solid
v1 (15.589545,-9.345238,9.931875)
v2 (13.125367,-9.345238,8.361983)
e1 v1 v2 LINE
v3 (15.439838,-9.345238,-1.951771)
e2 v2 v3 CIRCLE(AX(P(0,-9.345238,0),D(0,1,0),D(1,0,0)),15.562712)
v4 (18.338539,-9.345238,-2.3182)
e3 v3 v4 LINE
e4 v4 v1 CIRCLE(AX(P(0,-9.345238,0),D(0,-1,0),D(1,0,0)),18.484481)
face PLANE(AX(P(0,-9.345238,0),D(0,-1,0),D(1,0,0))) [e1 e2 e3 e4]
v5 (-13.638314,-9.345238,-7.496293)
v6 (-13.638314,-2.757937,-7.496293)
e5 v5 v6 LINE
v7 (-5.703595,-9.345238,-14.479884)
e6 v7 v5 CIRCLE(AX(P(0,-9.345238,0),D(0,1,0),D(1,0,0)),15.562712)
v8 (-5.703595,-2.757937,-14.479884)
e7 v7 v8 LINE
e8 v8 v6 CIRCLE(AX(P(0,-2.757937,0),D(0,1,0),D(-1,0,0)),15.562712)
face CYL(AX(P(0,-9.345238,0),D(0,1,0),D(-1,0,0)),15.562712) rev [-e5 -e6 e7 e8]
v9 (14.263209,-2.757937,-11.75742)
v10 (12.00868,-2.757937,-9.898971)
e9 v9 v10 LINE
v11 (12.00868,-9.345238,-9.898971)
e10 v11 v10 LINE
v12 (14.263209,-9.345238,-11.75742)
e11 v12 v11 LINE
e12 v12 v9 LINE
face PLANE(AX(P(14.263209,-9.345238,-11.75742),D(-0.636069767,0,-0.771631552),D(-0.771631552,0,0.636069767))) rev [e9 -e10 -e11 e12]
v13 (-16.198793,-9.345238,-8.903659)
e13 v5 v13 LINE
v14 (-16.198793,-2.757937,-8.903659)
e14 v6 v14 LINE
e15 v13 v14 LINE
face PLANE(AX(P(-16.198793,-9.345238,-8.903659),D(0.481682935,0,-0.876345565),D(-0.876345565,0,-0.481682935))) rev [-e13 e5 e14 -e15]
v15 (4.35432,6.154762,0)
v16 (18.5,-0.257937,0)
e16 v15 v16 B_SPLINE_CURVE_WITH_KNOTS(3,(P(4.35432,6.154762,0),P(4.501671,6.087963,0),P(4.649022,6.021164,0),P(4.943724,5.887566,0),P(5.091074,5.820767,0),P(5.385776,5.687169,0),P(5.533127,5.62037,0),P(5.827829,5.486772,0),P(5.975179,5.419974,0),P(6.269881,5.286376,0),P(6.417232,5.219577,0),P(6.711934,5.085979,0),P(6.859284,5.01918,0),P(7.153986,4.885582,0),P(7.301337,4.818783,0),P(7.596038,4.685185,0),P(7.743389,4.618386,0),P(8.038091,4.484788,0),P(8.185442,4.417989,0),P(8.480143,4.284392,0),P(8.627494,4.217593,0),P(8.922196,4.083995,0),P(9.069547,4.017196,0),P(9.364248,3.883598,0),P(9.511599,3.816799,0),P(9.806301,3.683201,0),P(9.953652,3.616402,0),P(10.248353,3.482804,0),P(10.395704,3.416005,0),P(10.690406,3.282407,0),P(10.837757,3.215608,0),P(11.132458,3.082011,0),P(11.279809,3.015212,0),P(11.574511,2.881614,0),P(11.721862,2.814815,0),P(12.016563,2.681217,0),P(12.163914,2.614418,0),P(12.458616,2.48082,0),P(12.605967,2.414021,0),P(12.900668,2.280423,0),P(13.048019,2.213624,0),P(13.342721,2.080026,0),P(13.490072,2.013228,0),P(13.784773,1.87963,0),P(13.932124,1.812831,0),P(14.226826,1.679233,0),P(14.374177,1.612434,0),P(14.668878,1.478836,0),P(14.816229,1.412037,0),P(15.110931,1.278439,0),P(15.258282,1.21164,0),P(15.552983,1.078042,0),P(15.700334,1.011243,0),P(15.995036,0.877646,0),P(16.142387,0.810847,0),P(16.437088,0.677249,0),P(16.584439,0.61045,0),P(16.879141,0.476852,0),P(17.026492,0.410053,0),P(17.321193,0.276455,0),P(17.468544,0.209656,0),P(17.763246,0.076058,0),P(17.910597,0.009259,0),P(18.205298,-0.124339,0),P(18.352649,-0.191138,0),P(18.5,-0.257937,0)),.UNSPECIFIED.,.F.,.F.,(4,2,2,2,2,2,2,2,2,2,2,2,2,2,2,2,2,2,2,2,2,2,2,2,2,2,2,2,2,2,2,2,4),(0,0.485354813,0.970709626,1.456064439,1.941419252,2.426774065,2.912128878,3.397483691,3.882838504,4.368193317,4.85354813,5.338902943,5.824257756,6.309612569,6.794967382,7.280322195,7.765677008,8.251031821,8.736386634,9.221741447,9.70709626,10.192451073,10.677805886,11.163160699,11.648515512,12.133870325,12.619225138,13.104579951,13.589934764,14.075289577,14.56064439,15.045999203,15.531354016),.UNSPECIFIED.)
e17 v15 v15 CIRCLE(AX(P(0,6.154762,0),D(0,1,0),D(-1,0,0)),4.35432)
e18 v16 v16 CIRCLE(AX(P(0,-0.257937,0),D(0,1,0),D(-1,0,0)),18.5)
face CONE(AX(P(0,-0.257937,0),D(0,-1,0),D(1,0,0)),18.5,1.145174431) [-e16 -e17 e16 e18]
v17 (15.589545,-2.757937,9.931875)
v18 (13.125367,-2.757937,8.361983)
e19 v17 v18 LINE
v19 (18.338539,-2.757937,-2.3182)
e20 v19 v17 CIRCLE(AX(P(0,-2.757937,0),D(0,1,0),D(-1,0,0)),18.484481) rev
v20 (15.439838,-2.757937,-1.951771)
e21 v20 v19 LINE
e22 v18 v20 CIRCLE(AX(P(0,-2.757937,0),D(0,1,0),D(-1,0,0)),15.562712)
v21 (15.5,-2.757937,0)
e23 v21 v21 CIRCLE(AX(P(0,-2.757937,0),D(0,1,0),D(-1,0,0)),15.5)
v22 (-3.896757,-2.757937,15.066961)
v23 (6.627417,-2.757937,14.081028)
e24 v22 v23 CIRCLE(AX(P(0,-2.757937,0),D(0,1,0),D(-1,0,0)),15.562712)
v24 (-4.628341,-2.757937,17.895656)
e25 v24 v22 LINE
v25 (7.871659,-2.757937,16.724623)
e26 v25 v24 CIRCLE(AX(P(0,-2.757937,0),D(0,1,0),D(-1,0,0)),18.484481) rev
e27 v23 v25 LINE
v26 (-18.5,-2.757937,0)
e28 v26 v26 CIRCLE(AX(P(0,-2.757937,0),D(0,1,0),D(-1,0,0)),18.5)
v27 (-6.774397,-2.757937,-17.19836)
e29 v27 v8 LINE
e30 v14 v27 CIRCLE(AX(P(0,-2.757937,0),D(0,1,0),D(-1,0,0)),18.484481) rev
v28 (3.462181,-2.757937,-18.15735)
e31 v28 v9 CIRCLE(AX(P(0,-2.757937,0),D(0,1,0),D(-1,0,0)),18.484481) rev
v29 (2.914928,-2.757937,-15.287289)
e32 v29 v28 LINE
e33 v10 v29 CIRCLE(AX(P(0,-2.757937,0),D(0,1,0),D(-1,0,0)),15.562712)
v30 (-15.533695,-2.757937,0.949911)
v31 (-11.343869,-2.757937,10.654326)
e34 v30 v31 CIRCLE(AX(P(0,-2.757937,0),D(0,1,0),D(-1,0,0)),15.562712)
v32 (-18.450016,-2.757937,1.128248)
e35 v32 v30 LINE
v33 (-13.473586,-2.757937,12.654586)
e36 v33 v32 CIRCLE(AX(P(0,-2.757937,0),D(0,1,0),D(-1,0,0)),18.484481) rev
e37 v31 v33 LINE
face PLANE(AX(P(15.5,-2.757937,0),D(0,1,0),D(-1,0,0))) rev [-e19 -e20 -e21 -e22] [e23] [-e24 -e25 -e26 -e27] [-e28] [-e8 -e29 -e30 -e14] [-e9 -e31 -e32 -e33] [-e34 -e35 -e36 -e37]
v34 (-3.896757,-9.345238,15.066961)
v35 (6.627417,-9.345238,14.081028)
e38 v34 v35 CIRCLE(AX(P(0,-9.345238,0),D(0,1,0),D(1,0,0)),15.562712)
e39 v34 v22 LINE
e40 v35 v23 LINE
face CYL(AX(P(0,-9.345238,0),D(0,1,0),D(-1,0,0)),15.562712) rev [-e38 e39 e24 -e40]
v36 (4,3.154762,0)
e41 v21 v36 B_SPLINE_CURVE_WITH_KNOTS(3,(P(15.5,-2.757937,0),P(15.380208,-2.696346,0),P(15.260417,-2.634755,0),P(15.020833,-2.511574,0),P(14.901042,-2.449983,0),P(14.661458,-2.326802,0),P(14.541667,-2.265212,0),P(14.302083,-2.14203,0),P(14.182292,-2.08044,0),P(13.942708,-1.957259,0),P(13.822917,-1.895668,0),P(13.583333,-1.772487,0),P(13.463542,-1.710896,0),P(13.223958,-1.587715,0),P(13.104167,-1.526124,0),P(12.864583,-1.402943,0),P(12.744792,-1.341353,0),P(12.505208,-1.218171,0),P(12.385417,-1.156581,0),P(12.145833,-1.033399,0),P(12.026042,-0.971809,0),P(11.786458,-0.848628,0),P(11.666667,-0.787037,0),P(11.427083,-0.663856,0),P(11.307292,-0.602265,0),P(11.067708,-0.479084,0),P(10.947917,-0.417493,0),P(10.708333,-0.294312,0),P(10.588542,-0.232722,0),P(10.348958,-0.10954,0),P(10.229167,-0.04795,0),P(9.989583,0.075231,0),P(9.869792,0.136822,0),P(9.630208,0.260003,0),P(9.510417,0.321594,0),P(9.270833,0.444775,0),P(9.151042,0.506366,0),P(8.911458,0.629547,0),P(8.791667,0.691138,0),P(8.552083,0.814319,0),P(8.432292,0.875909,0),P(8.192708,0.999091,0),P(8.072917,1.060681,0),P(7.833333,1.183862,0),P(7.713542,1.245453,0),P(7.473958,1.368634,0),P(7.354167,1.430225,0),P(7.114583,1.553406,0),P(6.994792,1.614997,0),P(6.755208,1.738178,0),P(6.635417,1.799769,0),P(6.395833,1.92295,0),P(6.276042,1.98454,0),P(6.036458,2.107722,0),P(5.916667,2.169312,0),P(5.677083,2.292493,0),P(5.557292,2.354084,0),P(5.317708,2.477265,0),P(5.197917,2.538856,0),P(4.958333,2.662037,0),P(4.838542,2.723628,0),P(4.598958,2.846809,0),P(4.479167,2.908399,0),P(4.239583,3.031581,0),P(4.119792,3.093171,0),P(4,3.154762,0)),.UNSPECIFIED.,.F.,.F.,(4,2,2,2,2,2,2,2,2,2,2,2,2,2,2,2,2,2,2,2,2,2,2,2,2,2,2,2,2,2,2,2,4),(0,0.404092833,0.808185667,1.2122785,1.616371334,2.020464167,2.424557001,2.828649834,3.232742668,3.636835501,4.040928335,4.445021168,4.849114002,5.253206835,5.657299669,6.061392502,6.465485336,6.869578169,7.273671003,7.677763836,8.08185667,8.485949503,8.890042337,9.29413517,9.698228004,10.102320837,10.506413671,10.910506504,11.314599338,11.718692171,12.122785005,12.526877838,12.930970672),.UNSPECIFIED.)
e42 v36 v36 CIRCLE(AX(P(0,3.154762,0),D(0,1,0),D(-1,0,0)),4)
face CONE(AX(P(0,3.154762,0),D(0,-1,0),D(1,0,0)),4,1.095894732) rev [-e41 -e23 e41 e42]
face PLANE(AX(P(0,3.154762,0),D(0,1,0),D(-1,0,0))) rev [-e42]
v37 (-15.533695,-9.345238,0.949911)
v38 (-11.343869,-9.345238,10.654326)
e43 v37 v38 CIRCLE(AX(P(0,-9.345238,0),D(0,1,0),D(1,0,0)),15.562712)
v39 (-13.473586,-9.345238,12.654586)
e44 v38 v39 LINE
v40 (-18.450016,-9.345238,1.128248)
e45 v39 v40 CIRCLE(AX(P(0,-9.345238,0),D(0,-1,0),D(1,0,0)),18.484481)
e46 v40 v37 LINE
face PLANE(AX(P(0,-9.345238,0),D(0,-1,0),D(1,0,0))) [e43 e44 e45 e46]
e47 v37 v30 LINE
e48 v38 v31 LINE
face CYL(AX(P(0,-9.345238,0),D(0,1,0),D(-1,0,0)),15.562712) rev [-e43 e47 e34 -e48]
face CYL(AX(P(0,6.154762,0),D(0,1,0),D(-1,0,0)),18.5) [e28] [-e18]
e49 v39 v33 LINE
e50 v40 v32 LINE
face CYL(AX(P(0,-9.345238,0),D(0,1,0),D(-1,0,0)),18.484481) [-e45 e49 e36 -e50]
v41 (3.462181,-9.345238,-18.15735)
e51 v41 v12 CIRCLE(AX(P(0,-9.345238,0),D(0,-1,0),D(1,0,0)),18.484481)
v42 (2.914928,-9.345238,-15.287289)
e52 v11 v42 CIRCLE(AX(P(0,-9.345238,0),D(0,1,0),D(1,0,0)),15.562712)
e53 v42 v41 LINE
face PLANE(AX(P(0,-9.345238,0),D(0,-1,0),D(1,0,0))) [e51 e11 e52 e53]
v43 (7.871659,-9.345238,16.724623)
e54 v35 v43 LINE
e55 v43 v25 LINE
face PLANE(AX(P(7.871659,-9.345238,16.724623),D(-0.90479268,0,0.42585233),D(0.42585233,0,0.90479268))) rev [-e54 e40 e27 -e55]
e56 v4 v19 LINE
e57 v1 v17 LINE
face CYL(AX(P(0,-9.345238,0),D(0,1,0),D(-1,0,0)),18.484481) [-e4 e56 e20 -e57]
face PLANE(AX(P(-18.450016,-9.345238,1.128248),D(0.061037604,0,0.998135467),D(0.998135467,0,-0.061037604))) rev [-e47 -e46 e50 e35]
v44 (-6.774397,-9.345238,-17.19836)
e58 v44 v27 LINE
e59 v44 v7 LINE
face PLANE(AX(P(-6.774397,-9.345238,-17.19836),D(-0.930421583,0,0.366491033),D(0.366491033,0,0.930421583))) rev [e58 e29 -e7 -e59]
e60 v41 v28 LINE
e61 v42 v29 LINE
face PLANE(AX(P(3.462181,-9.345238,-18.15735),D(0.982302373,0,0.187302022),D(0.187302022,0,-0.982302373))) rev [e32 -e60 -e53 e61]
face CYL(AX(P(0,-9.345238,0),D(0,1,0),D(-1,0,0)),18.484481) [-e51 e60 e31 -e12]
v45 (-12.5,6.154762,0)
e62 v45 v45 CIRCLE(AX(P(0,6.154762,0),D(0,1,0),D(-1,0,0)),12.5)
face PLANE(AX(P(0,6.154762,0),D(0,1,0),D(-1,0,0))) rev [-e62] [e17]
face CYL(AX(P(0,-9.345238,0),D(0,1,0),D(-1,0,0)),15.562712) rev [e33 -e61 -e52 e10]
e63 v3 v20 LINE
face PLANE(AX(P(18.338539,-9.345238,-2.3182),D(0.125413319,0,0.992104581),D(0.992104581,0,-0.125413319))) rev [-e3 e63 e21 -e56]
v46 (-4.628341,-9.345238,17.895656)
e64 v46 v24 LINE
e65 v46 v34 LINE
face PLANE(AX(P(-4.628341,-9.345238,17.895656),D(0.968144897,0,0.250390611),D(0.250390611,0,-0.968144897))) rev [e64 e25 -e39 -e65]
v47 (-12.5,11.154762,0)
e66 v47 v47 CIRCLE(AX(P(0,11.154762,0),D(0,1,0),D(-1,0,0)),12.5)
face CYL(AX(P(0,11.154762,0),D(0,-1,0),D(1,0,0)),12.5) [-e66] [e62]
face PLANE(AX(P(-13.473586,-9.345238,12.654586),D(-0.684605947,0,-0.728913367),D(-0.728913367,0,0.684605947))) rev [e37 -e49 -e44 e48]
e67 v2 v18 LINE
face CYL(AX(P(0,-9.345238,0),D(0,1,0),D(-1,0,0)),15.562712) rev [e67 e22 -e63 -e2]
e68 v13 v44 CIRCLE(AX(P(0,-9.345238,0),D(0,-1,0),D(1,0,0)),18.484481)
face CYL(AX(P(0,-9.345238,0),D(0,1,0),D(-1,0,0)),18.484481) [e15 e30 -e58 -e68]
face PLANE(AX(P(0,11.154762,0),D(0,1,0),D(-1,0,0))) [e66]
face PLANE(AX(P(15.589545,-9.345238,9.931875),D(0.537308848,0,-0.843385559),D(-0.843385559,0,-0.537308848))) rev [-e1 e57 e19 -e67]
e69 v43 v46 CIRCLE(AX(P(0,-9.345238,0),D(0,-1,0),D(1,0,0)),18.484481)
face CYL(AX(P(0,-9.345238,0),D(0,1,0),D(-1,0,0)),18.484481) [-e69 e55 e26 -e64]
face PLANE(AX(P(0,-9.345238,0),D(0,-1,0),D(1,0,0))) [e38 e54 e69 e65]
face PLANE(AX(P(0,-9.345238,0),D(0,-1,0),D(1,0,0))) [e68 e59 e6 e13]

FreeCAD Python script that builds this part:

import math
import FreeCAD as App
import Part
import Sketcher


def add_polygon(sketch, points):
    """Adds a closed chain of lines whose ends are joined by coincident constraints."""
    first, n = sketch.GeometryCount, len(points)
    for a, b in zip(points, points[1:] + points[:1]):
        sketch.addGeometry(Part.LineSegment(App.Vector(*a, 0), App.Vector(*b, 0)), False)
    for i in range(n):
        sketch.addConstraint(Sketcher.Constraint("Coincident", first + i, 2, first + (i + 1) % n, 1))

doc = App.newDocument("Part")
body = doc.addObject("PartDesign::Body", "Body")

# Sketch on XY plane
sketch1 = body.newObject("Sketcher::SketchObject", "Sketch")
sketch1.AttachmentSupport = (doc.getObject("XY_Plane"), [""])
sketch1.MapMode = "FlatFace"
add_polygon(sketch1, [(0, 6.2), (0, 3.2), (4, 3.2), (15.5, -2.8), (18.5, -2.8), (18.5, -0.3), (4.4, 6.2)])  # lines 0-6
sketch1.addConstraint(Sketcher.Constraint("Vertical", 0))
sketch1.addConstraint(Sketcher.Constraint("Horizontal", 1))
sketch1.addConstraint(Sketcher.Constraint("Horizontal", 3))
sketch1.addConstraint(Sketcher.Constraint("Vertical", 4))
sketch1.addConstraint(Sketcher.Constraint("Horizontal", 6))
sketch1.addConstraint(Sketcher.Constraint("PointOnObject", 0, 2, -2))
sketch1.addConstraint(Sketcher.Constraint("Equal", 3, 0))
sketch1.addConstraint(Sketcher.Constraint("DistanceX", 1, 1, 1, 2, 4.0))
sketch1.addConstraint(Sketcher.Constraint("DistanceX", 3, 1, 3, 2, 3.0))
sketch1.addConstraint(Sketcher.Constraint("DistanceY", 4, 1, 4, 2, 2.5))
sketch1.addConstraint(Sketcher.Constraint("DistanceX", -1, 1, 2, 2, 15.5))
sketch1.addConstraint(Sketcher.Constraint("DistanceX", 6, 2, 6, 1, 4.35432))
sketch1.addConstraint(Sketcher.Constraint("DistanceY", 2, 2, 1, 2, 5.912698))
sketch1.addConstraint(Sketcher.Constraint("DistanceY", -1, 1, 0, 2, 3.154762))
revolution = body.newObject("PartDesign::Revolution", "Revolution")
revolution.Profile = sketch1
revolution.ReferenceAxis = (sketch1, ["V_Axis"])
revolution.Angle = 360

# Sketch on XZ plane
sketch2 = body.newObject("Sketcher::SketchObject", "Sketch001")
sketch2.AttachmentSupport = (doc.getObject("XZ_Plane"), [""])
sketch2.MapMode = "FlatFace"
sketch2.AttachmentOffset = App.Placement(App.Vector(0, 0, 0.345238), App.Rotation())
sketch2.addGeometry(Part.LineSegment(App.Vector(-4.6, 17.9, 0), App.Vector(-3.9, 15.1, 0)), False)
sketch2.addGeometry(Part.ArcOfCircle(Part.Circle(App.Vector(0, 0, 0), App.Vector(0, 0, 1), 15.6), math.radians(65), math.radians(105)), False)
sketch2.addGeometry(Part.LineSegment(App.Vector(6.6, 14.1, 0), App.Vector(7.9, 16.7, 0)), False)
sketch2.addGeometry(Part.ArcOfCircle(Part.Circle(App.Vector(0, 0, 0), App.Vector(0, 0, 1), 18.5), math.radians(65), math.radians(105)), False)
sketch2.addGeometry(Part.LineSegment(App.Vector(15.4, -2, 0), App.Vector(18.3, -2.3, 0)), False)
sketch2.addGeometry(Part.ArcOfCircle(Part.Circle(App.Vector(0, 0, 0), App.Vector(0, 0, 1), 18.5), math.radians(-7), math.radians(33)), False)
sketch2.addGeometry(Part.LineSegment(App.Vector(15.6, 9.9, 0), App.Vector(13.1, 8.4, 0)), False)
sketch2.addGeometry(Part.ArcOfCircle(Part.Circle(App.Vector(0, 0, 0), App.Vector(0, 0, 1), 15.6), math.radians(-7), math.radians(33)), False)
sketch2.addGeometry(Part.LineSegment(App.Vector(2.9, -15.3, 0), App.Vector(3.5, -18.2, 0)), False)
sketch2.addGeometry(Part.ArcOfCircle(Part.Circle(App.Vector(0, 0, 0), App.Vector(0, 0, 1), 18.5), math.radians(-79), math.radians(-39)), False)
sketch2.addGeometry(Part.LineSegment(App.Vector(14.3, -11.8, 0), App.Vector(12, -9.9, 0)), False)
sketch2.addGeometry(Part.ArcOfCircle(Part.Circle(App.Vector(0, 0, 0), App.Vector(0, 0, 1), 15.6), math.radians(-79), math.radians(-39)), False)
sketch2.addGeometry(Part.LineSegment(App.Vector(-13.6, -7.5, 0), App.Vector(-16.2, -8.9, 0)), False)
sketch2.addGeometry(Part.ArcOfCircle(Part.Circle(App.Vector(0, 0, 0), App.Vector(0, 0, 1), 18.5), math.radians(-151), math.radians(-111)), False)
sketch2.addGeometry(Part.LineSegment(App.Vector(-6.8, -17.2, 0), App.Vector(-5.7, -14.5, 0)), False)
sketch2.addGeometry(Part.ArcOfCircle(Part.Circle(App.Vector(0, 0, 0), App.Vector(0, 0, 1), 15.6), math.radians(-151), math.radians(-111)), False)
sketch2.addGeometry(Part.LineSegment(App.Vector(-11.3, 10.7, 0), App.Vector(-13.5, 12.7, 0)), False)
sketch2.addGeometry(Part.ArcOfCircle(Part.Circle(App.Vector(0, 0, 0), App.Vector(0, 0, 1), 18.5), math.radians(137), math.radians(177)), False)
sketch2.addGeometry(Part.LineSegment(App.Vector(-18.5, 1.1, 0), App.Vector(-15.5, 0.9, 0)), False)
sketch2.addGeometry(Part.ArcOfCircle(Part.Circle(App.Vector(0, 0, 0), App.Vector(0, 0, 1), 15.6), math.radians(137), math.radians(177)), False)
sketch2.addConstraint(Sketcher.Constraint("Coincident", 0, 2, 1, 2))
sketch2.addConstraint(Sketcher.Constraint("Coincident", 1, 1, 2, 1))
sketch2.addConstraint(Sketcher.Constraint("Coincident", 2, 2, 3, 1))
sketch2.addConstraint(Sketcher.Constraint("Coincident", 3, 2, 0, 1))
sketch2.addConstraint(Sketcher.Constraint("Coincident", 4, 2, 5, 1))
sketch2.addConstraint(Sketcher.Constraint("Coincident", 5, 2, 6, 1))
sketch2.addConstraint(Sketcher.Constraint("Coincident", 6, 2, 7, 2))
sketch2.addConstraint(Sketcher.Constraint("Coincident", 7, 1, 4, 1))
sketch2.addConstraint(Sketcher.Constraint("Coincident", 8, 2, 9, 1))
sketch2.addConstraint(Sketcher.Constraint("Coincident", 9, 2, 10, 1))
sketch2.addConstraint(Sketcher.Constraint("Coincident", 10, 2, 11, 2))
sketch2.addConstraint(Sketcher.Constraint("Coincident", 11, 1, 8, 1))
sketch2.addConstraint(Sketcher.Constraint("Coincident", 12, 2, 13, 1))
sketch2.addConstraint(Sketcher.Constraint("Coincident", 13, 2, 14, 1))
sketch2.addConstraint(Sketcher.Constraint("Coincident", 14, 2, 15, 2))
sketch2.addConstraint(Sketcher.Constraint("Coincident", 15, 1, 12, 1))
sketch2.addConstraint(Sketcher.Constraint("Coincident", 16, 2, 17, 1))
sketch2.addConstraint(Sketcher.Constraint("Coincident", 17, 2, 18, 1))
sketch2.addConstraint(Sketcher.Constraint("Coincident", 18, 2, 19, 2))
sketch2.addConstraint(Sketcher.Constraint("Coincident", 19, 1, 16, 1))
sketch2.addConstraint(Sketcher.Constraint("Coincident", 1, 3, -1, 1))
sketch2.addConstraint(Sketcher.Constraint("Coincident", 3, 3, -1, 1))
sketch2.addConstraint(Sketcher.Constraint("Coincident", 5, 3, -1, 1))
sketch2.addConstraint(Sketcher.Constraint("Coincident", 7, 3, -1, 1))
sketch2.addConstraint(Sketcher.Constraint("Coincident", 9, 3, -1, 1))
sketch2.addConstraint(Sketcher.Constraint("Coincident", 11, 3, -1, 1))
sketch2.addConstraint(Sketcher.Constraint("Coincident", 13, 3, -1, 1))
sketch2.addConstraint(Sketcher.Constraint("Coincident", 15, 3, -1, 1))
sketch2.addConstraint(Sketcher.Constraint("Coincident", 17, 3, -1, 1))
sketch2.addConstraint(Sketcher.Constraint("Coincident", 19, 3, -1, 1))
sketch2.addConstraint(Sketcher.Constraint("Equal", 3, 5))
sketch2.addConstraint(Sketcher.Constraint("Equal", 1, 7))
sketch2.addConstraint(Sketcher.Constraint("Equal", 5, 9))
sketch2.addConstraint(Sketcher.Constraint("Equal", 7, 11))
sketch2.addConstraint(Sketcher.Constraint("Equal", 9, 13))
sketch2.addConstraint(Sketcher.Constraint("Equal", 11, 15))
sketch2.addConstraint(Sketcher.Constraint("Equal", 13, 17))
sketch2.addConstraint(Sketcher.Constraint("Equal", 15, 19))
sketch2.addConstraint(Sketcher.Constraint("DistanceX", 3, 2, 2, 2, 12.5))
sketch2.addConstraint(Sketcher.Constraint("Radius", 3, 18.484481))
sketch2.addConstraint(Sketcher.Constraint("Radius", 1, 15.562712))
sketch2.addConstraint(Sketcher.Constraint("DistanceY", 4, 2, -1, 1, 2.3182))
sketch2.addConstraint(Sketcher.Constraint("DistanceX", 7, 1, 4, 2, 2.8987))
sketch2.addConstraint(Sketcher.Constraint("DistanceY", 10, 2, 7, 1, 7.947199))
sketch2.addConstraint(Sketcher.Constraint("DistanceX", 8, 2, 10, 2, 8.546499))
sketch2.addConstraint(Sketcher.Constraint("DistanceY", 13, 2, 12, 2, 8.294701))
sketch2.addConstraint(Sketcher.Constraint("DistanceX", 12, 2, 14, 2, 10.495199))
sketch2.addConstraint(Sketcher.Constraint("DistanceY", -1, 1, 0, 2, 15.066961))
sketch2.addConstraint(Sketcher.Constraint("DistanceY", -1, 1, 1, 1, 14.081028))
sketch2.addConstraint(Sketcher.Constraint("DistanceX", -1, 1, 2, 2, 7.871659))
sketch2.addConstraint(Sketcher.Constraint("DistanceX", -1, 1, 9, 2, 14.263209))
sketch2.addConstraint(Sketcher.Constraint("DistanceY", 11, 1, -1, 1, 15.287289))
sketch2.addConstraint(Sketcher.Constraint("DistanceY", 12, 2, -1, 1, 8.903659))
sketch2.addConstraint(Sketcher.Constraint("DistanceY", -1, 1, 17, 2, 1.128248))
sketch2.addConstraint(Sketcher.Constraint("DistanceY", -1, 1, 18, 2, 0.949911))
sketch2.addConstraint(Sketcher.Constraint("DistanceX", 19, 1, -1, 1, 11.343869))
sketch2.addConstraint(Sketcher.Constraint("DistanceY", 5, 2, 2, 2, 6.792748))
sketch2.addConstraint(Sketcher.Constraint("DistanceX", 1, 1, 6, 2, 6.49795))
sketch2.addConstraint(Sketcher.Constraint("DistanceX", 12, 2, 15, 1, 2.560479))
sketch2.addConstraint(Sketcher.Constraint("DistanceX", 16, 2, 0, 2, 9.576828))
pad1 = body.newObject("PartDesign::Pad", "Pad")
pad1.Profile = sketch2
pad1.Length = 9

# Sketch on XZ plane
sketch3 = body.newObject("Sketcher::SketchObject", "Sketch002")
sketch3.AttachmentSupport = (doc.getObject("XZ_Plane"), [""])
sketch3.MapMode = "FlatFace"
sketch3.AttachmentOffset = App.Placement(App.Vector(0, 0, -6.154762), App.Rotation())
sketch3.addGeometry(Part.Circle(App.Vector(0, 0, 0), App.Vector(0, 0, 1), 12), False)
sketch3.addConstraint(Sketcher.Constraint("Coincident", 0, 3, -1, 1))
sketch3.addConstraint(Sketcher.Constraint("Diameter", 0, 25.0))
pad2 = body.newObject("PartDesign::Pad", "Pad001")
pad2.Profile = sketch3
pad2.Length = 5
pad2.Reversed = True

doc.recompute()
